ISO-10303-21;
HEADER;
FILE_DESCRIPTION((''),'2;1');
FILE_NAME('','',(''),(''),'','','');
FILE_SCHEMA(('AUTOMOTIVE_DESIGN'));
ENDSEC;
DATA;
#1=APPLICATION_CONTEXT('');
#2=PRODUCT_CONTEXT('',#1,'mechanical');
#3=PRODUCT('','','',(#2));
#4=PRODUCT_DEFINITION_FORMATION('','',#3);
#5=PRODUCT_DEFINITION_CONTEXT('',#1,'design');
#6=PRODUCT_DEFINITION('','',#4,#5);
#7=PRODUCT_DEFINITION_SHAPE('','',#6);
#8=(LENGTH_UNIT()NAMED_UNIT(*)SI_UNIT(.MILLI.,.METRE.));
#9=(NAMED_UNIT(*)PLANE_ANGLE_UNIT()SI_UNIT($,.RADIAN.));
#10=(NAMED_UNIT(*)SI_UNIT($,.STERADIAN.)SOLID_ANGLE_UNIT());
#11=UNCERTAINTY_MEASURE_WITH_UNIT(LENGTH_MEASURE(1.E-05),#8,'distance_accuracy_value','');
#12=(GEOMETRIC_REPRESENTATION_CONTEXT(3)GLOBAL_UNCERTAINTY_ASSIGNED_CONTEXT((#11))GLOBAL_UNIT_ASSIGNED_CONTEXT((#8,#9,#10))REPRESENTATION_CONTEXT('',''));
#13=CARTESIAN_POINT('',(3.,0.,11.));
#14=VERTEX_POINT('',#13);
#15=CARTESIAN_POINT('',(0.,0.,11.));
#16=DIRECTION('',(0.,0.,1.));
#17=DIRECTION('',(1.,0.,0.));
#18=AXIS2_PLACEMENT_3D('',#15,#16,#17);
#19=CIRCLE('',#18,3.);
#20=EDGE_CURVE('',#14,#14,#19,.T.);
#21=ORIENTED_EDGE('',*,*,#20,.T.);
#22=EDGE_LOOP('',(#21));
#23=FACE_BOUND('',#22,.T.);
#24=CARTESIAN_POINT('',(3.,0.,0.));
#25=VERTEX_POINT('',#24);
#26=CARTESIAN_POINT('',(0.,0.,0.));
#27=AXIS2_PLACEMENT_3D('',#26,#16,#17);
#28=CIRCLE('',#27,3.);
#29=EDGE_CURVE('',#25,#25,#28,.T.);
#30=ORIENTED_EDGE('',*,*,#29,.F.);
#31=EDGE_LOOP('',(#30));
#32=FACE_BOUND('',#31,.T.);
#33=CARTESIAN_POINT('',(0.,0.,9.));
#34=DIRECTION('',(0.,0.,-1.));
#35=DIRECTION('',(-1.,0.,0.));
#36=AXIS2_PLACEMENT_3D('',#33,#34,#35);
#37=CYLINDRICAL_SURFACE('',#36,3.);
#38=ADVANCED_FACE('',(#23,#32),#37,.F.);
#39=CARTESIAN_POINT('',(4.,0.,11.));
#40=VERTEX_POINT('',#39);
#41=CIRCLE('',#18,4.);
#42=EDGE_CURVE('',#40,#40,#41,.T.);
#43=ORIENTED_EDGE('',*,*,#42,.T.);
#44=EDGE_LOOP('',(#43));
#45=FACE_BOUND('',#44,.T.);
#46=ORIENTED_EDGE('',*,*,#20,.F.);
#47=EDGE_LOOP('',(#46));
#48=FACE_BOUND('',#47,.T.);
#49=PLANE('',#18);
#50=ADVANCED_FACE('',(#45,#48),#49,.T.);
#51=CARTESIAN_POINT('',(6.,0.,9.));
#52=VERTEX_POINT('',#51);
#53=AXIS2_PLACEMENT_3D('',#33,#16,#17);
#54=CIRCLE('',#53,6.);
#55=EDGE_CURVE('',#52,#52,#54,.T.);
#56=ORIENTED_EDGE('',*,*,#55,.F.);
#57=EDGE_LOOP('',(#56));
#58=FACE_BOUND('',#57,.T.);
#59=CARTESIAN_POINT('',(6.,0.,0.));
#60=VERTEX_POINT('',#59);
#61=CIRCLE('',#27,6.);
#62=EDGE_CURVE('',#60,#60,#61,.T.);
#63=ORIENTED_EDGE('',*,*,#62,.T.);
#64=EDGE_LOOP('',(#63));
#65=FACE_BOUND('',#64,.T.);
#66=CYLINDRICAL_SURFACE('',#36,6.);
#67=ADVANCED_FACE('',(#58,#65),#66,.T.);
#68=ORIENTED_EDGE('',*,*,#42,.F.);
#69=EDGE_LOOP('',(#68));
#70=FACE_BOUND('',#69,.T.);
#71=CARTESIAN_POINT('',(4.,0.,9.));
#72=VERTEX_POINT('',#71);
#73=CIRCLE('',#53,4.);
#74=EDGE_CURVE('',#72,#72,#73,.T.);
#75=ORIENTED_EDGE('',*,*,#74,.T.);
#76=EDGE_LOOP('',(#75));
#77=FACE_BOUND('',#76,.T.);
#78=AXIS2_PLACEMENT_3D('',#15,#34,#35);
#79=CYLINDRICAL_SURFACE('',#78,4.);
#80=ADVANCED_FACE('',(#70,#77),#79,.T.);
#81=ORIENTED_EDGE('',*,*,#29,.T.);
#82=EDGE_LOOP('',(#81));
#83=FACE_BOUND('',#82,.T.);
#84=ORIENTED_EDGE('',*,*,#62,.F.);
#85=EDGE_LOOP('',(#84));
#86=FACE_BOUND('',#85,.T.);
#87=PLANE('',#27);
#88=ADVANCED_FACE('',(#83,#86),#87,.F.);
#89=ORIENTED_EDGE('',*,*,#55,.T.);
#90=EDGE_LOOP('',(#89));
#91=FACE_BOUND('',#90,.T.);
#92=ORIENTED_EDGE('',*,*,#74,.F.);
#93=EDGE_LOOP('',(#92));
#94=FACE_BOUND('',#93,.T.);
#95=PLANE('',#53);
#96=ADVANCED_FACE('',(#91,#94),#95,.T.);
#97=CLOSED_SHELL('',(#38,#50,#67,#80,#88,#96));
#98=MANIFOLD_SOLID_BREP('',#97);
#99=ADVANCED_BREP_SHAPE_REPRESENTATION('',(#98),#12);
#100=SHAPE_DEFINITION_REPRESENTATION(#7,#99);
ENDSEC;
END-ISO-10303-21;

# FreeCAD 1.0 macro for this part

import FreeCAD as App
import Part
import Sketcher
from FreeCAD import Vector

doc = App.newDocument("Part")
body = doc.addObject("PartDesign::Body", "Body")

# Sketch on XY plane
sketch1 = body.newObject("Sketcher::SketchObject", "Sketch")
sketch1.AttachmentSupport = (doc.getObject("XY_Plane"), [""])
sketch1.MapMode = "FlatFace"
sketch1.addGeometry([
    Part.Circle(Vector(0, 0, 0), Vector(0, 0, 1), 6),
    Part.Circle(Vector(0, 0, 0), Vector(0, 0, 1), 3),
], False)
sketch1.addConstraint([
    Sketcher.Constraint("Coincident", 0, 3, -1, 1),
    Sketcher.Constraint("Coincident", 1, 3, -1, 1),
    Sketcher.Constraint("Diameter", 0, 12.0),
    Sketcher.Constraint("Diameter", 1, 6.0),
])
pad1 = body.newObject("PartDesign::Pad", "Pad")
pad1.Profile = sketch1
pad1.Length = 9

# Sketch on XY plane
sketch2 = body.newObject("Sketcher::SketchObject", "Sketch001")
sketch2.AttachmentSupport = (doc.getObject("XY_Plane"), [""])
sketch2.MapMode = "FlatFace"
sketch2.AttachmentOffset = App.Placement(Vector(0, 0, 9), App.Rotation())
sketch2.addGeometry([
    Part.Circle(Vector(0, 0, 0), Vector(0, 0, 1), 4),
    Part.Circle(Vector(0, 0, 0), Vector(0, 0, 1), 3),
], False)
sketch2.addConstraint([
    Sketcher.Constraint("Coincident", 0, 3, -1, 1),
    Sketcher.Constraint("Coincident", 1, 3, -1, 1),
    Sketcher.Constraint("Diameter", 0, 8.0),
    Sketcher.Constraint("Diameter", 1, 6.0),
])
pad2 = body.newObject("PartDesign::Pad", "Pad001")
pad2.Profile = sketch2
pad2.Length = 2

doc.recompute()
